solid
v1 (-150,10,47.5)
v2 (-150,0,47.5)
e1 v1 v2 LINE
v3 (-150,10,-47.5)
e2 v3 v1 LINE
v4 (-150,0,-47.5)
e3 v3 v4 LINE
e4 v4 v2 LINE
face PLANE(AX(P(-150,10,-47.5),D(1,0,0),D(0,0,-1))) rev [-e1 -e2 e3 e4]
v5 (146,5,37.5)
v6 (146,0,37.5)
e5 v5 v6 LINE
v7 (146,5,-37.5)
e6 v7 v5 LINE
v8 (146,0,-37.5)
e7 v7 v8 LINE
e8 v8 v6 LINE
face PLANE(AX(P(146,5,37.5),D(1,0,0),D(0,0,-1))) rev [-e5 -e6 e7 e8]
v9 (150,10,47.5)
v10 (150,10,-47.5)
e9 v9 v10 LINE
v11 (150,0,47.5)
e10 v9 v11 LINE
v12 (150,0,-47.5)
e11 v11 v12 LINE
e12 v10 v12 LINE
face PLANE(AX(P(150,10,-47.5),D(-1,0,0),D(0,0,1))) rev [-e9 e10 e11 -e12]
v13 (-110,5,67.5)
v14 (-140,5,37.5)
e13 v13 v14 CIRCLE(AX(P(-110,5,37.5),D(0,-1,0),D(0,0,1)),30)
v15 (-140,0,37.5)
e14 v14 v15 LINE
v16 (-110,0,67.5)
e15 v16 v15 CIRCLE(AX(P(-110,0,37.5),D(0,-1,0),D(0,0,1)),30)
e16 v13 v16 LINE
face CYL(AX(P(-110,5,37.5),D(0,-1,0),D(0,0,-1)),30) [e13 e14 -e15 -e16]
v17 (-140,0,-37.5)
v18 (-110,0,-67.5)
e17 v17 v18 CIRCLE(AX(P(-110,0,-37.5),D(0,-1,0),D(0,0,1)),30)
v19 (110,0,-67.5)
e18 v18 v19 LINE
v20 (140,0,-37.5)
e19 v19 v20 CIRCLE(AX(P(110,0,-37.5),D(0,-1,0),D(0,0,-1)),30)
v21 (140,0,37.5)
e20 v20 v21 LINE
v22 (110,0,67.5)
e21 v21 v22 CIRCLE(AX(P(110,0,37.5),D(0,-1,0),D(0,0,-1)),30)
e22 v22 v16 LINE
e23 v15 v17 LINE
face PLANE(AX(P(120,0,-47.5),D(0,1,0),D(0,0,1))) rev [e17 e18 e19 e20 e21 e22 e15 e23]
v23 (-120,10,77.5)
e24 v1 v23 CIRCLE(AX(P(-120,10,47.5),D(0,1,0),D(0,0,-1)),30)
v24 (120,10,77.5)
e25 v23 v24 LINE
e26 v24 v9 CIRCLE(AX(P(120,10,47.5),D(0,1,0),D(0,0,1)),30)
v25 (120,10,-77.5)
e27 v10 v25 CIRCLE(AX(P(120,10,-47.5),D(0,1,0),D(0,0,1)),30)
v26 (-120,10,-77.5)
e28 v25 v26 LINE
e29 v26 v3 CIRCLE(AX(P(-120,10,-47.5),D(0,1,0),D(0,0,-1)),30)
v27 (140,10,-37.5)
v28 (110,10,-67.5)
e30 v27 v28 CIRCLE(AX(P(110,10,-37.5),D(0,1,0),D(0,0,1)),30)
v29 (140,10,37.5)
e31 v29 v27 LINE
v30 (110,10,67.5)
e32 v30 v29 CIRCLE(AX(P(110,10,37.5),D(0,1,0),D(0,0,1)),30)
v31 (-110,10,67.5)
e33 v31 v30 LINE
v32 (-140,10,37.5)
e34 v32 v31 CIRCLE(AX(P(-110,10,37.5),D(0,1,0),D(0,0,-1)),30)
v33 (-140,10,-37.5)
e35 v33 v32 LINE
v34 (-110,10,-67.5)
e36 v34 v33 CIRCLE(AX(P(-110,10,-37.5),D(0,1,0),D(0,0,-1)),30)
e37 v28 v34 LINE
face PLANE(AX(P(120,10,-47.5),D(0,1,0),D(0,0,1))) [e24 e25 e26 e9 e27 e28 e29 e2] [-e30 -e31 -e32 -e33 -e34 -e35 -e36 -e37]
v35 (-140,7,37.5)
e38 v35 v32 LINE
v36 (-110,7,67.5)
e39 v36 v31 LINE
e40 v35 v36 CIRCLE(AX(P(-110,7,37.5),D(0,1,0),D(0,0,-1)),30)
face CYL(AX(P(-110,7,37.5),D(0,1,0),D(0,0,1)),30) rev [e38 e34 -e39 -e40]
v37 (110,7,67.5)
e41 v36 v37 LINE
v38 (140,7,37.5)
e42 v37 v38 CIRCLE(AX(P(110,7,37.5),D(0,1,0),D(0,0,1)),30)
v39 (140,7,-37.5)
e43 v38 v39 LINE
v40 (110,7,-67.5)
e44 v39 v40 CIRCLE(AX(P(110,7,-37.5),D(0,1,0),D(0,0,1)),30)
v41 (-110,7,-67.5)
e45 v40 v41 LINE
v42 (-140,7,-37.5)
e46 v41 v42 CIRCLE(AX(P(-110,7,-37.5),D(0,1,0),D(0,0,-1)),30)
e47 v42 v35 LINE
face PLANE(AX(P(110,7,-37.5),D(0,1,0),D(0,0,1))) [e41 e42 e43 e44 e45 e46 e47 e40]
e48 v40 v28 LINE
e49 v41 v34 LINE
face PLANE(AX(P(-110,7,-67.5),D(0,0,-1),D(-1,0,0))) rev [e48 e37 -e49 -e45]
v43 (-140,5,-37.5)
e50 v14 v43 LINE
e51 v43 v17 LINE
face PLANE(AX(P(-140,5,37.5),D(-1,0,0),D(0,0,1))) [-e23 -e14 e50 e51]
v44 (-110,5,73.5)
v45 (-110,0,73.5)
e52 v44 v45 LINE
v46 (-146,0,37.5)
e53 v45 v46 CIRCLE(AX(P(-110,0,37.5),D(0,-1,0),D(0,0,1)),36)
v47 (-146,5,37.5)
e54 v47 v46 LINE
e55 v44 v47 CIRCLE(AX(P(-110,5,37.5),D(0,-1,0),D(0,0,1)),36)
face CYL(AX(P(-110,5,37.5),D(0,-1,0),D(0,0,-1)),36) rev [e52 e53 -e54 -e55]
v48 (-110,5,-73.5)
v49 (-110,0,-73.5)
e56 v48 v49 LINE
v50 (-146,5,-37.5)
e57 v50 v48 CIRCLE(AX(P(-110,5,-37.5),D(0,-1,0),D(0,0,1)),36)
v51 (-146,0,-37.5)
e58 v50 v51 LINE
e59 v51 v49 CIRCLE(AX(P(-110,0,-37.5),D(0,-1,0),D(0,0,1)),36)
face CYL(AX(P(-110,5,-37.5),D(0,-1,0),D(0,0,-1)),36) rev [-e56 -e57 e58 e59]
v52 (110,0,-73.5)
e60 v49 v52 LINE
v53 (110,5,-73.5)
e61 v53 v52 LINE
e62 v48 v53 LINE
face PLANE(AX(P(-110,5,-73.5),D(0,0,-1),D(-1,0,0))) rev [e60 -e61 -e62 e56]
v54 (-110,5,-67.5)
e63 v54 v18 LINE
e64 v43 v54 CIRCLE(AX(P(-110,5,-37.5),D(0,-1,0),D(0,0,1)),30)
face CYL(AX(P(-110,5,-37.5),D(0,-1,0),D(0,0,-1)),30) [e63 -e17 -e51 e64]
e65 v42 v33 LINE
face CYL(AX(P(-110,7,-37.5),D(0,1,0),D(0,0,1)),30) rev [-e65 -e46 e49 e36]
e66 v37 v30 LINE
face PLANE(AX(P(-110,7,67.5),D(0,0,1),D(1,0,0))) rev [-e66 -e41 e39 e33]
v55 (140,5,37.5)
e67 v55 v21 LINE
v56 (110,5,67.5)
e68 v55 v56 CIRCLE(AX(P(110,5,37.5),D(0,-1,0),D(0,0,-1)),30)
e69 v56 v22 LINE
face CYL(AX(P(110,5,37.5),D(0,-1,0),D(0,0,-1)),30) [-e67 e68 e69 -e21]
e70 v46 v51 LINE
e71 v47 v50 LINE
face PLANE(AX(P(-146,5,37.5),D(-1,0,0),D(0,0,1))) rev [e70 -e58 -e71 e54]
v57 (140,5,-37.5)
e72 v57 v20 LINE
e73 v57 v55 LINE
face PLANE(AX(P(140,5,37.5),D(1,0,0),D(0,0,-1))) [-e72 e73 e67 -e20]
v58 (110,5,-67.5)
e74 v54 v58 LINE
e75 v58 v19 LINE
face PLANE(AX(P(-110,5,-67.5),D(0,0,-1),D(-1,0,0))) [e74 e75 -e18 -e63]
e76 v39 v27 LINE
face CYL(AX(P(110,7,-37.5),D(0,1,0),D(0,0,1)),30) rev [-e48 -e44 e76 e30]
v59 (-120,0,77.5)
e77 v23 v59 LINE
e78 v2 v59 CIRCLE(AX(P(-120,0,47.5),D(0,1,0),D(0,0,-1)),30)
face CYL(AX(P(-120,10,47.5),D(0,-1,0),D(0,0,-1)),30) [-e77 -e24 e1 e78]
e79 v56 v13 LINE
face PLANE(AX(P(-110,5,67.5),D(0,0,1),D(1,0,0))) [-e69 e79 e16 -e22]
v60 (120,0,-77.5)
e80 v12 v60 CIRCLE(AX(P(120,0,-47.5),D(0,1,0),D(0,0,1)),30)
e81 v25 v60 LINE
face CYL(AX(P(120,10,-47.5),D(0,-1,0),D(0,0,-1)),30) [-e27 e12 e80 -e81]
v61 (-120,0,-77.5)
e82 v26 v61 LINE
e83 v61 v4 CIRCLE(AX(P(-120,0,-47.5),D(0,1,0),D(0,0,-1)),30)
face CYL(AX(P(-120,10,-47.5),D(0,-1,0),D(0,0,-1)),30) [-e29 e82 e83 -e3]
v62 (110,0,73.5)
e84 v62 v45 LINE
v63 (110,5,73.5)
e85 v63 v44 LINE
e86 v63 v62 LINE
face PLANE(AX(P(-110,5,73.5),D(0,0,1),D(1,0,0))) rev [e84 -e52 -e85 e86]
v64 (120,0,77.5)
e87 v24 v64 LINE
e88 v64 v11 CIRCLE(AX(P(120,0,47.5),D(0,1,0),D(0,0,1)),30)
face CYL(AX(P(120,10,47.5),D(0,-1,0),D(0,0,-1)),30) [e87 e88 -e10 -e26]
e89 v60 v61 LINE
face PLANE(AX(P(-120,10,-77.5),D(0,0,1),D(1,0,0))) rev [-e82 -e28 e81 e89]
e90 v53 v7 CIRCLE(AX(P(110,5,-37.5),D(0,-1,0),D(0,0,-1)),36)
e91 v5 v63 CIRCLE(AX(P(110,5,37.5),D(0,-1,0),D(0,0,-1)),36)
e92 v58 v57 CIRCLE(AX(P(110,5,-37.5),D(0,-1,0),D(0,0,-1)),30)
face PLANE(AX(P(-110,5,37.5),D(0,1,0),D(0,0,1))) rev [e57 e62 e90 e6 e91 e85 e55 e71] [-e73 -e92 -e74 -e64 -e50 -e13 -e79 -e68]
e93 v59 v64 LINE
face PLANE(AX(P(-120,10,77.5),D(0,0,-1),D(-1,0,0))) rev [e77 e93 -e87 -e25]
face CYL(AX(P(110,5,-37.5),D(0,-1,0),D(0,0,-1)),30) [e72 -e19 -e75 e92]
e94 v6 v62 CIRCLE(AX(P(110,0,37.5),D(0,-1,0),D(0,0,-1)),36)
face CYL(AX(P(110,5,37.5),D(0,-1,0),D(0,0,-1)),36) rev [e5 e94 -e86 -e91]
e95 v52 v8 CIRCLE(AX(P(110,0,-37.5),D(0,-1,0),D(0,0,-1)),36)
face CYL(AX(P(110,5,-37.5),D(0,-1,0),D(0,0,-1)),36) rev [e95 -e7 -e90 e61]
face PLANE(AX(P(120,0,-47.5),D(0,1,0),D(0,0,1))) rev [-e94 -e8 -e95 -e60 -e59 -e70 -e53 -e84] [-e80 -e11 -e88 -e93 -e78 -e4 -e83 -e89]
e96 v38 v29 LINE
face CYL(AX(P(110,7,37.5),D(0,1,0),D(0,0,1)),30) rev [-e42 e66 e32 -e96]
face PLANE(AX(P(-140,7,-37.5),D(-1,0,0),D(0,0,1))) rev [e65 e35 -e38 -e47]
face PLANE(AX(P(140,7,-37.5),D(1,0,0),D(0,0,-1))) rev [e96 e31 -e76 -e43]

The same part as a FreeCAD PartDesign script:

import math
import FreeCAD as App
import Part
import Sketcher

V = App.Vector

doc = App.newDocument("Part")
params = doc.addObject("Spreadsheet::Sheet", "Params")
for row, (alias, value) in enumerate([
    ("sketch1_radius", "30 mm"),
    ("sketch1_width", "240 mm"),
    ("sketch1_height", "95 mm"),
    ("pad1_length", "10 mm"),
    ("sketch2_radius", "36 mm"),
    ("sketch2_radius2", "30 mm"),
    ("sketch2_width", "220 mm"),
    ("sketch2_height", "75 mm"),
    ("pocket1_length", "5 mm"),
    ("sketch3_radius", "30 mm"),
    ("sketch3_width", "220 mm"),
    ("sketch3_height", "75 mm"),
    ("pocket2_length", "3 mm"),
], start=1):
    params.set(f"A{row}", alias)
    params.set(f"B{row}", "=" + value)
    params.setAlias(f"B{row}", alias)

body = doc.addObject("PartDesign::Body", "Body")

# Sketch on XZ plane
sketch1 = body.newObject("Sketcher::SketchObject", "Sketch")
sketch1.AttachmentSupport = (doc.getObject("XZ_Plane"), [""])
sketch1.MapMode = "FlatFace"
sketch1.addGeometry([
    Part.LineSegment(V(120, -78, 0), V(-120, -78, 0)),  # 0
    Part.ArcOfCircle(Part.Circle(V(-120, -48, 0), V(0, 0, 1), 30), math.radians(180), math.radians(270)),  # 1
    Part.LineSegment(V(-150, -48, 0), V(-150, 48, 0)),  # 2
    Part.ArcOfCircle(Part.Circle(V(-120, 48, 0), V(0, 0, 1), 30), math.radians(90), math.radians(180)),  # 3
    Part.LineSegment(V(-120, 78, 0), V(120, 78, 0)),  # 4
    Part.ArcOfCircle(Part.Circle(V(120, 48, 0), V(0, 0, 1), 30), math.radians(0), math.radians(90)),  # 5
    Part.LineSegment(V(150, 48, 0), V(150, -48, 0)),  # 6
    Part.ArcOfCircle(Part.Circle(V(120, -48, 0), V(0, 0, 1), 30), math.radians(-90), math.radians(0)),  # 7
], False)
sketch1.addConstraint([
    Sketcher.Constraint("Tangent", 0, 2, 1, 2),
    Sketcher.Constraint("Tangent", 1, 1, 2, 1),
    Sketcher.Constraint("Tangent", 2, 2, 3, 2),
    Sketcher.Constraint("Tangent", 3, 1, 4, 1),
    Sketcher.Constraint("Tangent", 4, 2, 5, 2),
    Sketcher.Constraint("Tangent", 5, 1, 6, 1),
    Sketcher.Constraint("Tangent", 6, 2, 7, 2),
    Sketcher.Constraint("Tangent", 7, 1, 0, 1),
    Sketcher.Constraint("Horizontal", 0),
    Sketcher.Constraint("Vertical", 2),
    Sketcher.Constraint("Horizontal", 4),
    Sketcher.Constraint("Vertical", 6),
    Sketcher.Constraint("Equal", 1, 3),
    Sketcher.Constraint("Equal", 3, 5),
    Sketcher.Constraint("Equal", 5, 7),
    Sketcher.Constraint("Symmetric", 1, 3, 5, 3, -1, 1),
    Sketcher.Constraint("Radius", 1, 30.0),
    Sketcher.Constraint("DistanceX", 0, 2, 0, 1, 240.0),
    Sketcher.Constraint("DistanceY", 2, 1, 2, 2, 95.0),
])
sketch1.setExpression("Constraints[16]", "Params.sketch1_radius")
sketch1.setExpression("Constraints[17]", "Params.sketch1_width")
sketch1.setExpression("Constraints[18]", "Params.sketch1_height")
pad1 = body.newObject("PartDesign::Pad", "Pad")
pad1.Profile = sketch1
pad1.setExpression("Length", "Params.pad1_length")
pad1.Reversed = True

# Sketch on XZ plane
sketch2 = body.newObject("Sketcher::SketchObject", "Sketch001")
sketch2.AttachmentSupport = (doc.getObject("XZ_Plane"), [""])
sketch2.MapMode = "FlatFace"
sketch2.addGeometry([
    Part.LineSegment(V(110, 74, 0), V(-110, 74, 0)),  # 0
    Part.ArcOfCircle(Part.Circle(V(-110, 38, 0), V(0, 0, 1), 36), math.radians(90), math.radians(180)),  # 1
    Part.LineSegment(V(-146, 38, 0), V(-146, -38, 0)),  # 2
    Part.ArcOfCircle(Part.Circle(V(-110, -38, 0), V(0, 0, 1), 36), math.radians(180), math.radians(270)),  # 3
    Part.LineSegment(V(-110, -74, 0), V(110, -74, 0)),  # 4
    Part.ArcOfCircle(Part.Circle(V(110, -38, 0), V(0, 0, 1), 36), math.radians(-90), math.radians(0)),  # 5
    Part.LineSegment(V(146, -38, 0), V(146, 38, 0)),  # 6
    Part.ArcOfCircle(Part.Circle(V(110, 38, 0), V(0, 0, 1), 36), math.radians(0), math.radians(90)),  # 7
    Part.LineSegment(V(-110, 68, 0), V(110, 68, 0)),  # 8
    Part.ArcOfCircle(Part.Circle(V(110, 38, 0), V(0, 0, 1), 30), math.radians(0), math.radians(90)),  # 9
    Part.LineSegment(V(140, 38, 0), V(140, -38, 0)),  # 10
    Part.ArcOfCircle(Part.Circle(V(110, -38, 0), V(0, 0, 1), 30), math.radians(-90), math.radians(0)),  # 11
    Part.LineSegment(V(110, -68, 0), V(-110, -68, 0)),  # 12
    Part.ArcOfCircle(Part.Circle(V(-110, -38, 0), V(0, 0, 1), 30), math.radians(180), math.radians(270)),  # 13
    Part.LineSegment(V(-140, -38, 0), V(-140, 38, 0)),  # 14
    Part.ArcOfCircle(Part.Circle(V(-110, 38, 0), V(0, 0, 1), 30), math.radians(90), math.radians(180)),  # 15
], False)
sketch2.addConstraint([
    Sketcher.Constraint("Tangent", 0, 2, 1, 1),
    Sketcher.Constraint("Tangent", 1, 2, 2, 1),
    Sketcher.Constraint("Tangent", 2, 2, 3, 1),
    Sketcher.Constraint("Tangent", 3, 2, 4, 1),
    Sketcher.Constraint("Tangent", 4, 2, 5, 1),
    Sketcher.Constraint("Tangent", 5, 2, 6, 1),
    Sketcher.Constraint("Tangent", 6, 2, 7, 1),
    Sketcher.Constraint("Tangent", 7, 2, 0, 1),
    Sketcher.Constraint("Tangent", 8, 2, 9, 2),
    Sketcher.Constraint("Tangent", 9, 1, 10, 1),
    Sketcher.Constraint("Tangent", 10, 2, 11, 2),
    Sketcher.Constraint("Tangent", 11, 1, 12, 1),
    Sketcher.Constraint("Tangent", 12, 2, 13, 2),
    Sketcher.Constraint("Tangent", 13, 1, 14, 1),
    Sketcher.Constraint("Tangent", 14, 2, 15, 2),
    Sketcher.Constraint("Tangent", 15, 1, 8, 1),
    Sketcher.Constraint("Horizontal", 0),
    Sketcher.Constraint("Vertical", 2),
    Sketcher.Constraint("Horizontal", 4),
    Sketcher.Constraint("Vertical", 6),
    Sketcher.Constraint("Horizontal", 8),
    Sketcher.Constraint("Vertical", 10),
    Sketcher.Constraint("Horizontal", 12),
    Sketcher.Constraint("Vertical", 14),
    Sketcher.Constraint("Coincident", 9, 3, 7, 3),
    Sketcher.Constraint("Coincident", 11, 3, 5, 3),
    Sketcher.Constraint("Coincident", 13, 3, 3, 3),
    Sketcher.Constraint("Equal", 1, 3),
    Sketcher.Constraint("Equal", 3, 5),
    Sketcher.Constraint("Equal", 5, 7),
    Sketcher.Constraint("Equal", 13, 15),
    Sketcher.Constraint("Symmetric", 1, 3, 5, 3, -1, 1),
    Sketcher.Constraint("Radius", 1, 36.0),
    Sketcher.Constraint("Radius", 9, 30.0),
    Sketcher.Constraint("DistanceX", 0, 2, 0, 1, 220.0),
    Sketcher.Constraint("DistanceY", 2, 2, 2, 1, 75.0),
])
sketch2.setExpression("Constraints[32]", "Params.sketch2_radius")
sketch2.setExpression("Constraints[33]", "Params.sketch2_radius2")
sketch2.setExpression("Constraints[34]", "Params.sketch2_width")
sketch2.setExpression("Constraints[35]", "Params.sketch2_height")
pocket1 = body.newObject("PartDesign::Pocket", "Pocket")
pocket1.Profile = sketch2
pocket1.setExpression("Length", "Params.pocket1_length")

# Sketch on XZ plane
sketch3 = body.newObject("Sketcher::SketchObject", "Sketch002")
sketch3.AttachmentSupport = (doc.getObject("XZ_Plane"), [""])
sketch3.MapMode = "FlatFace"
sketch3.AttachmentOffset = App.Placement(V(0, 0, -10), App.Rotation())
sketch3.addGeometry([
    Part.LineSegment(V(110, -68, 0), V(-110, -68, 0)),  # 0
    Part.ArcOfCircle(Part.Circle(V(-110, -38, 0), V(0, 0, 1), 30), math.radians(180), math.radians(270)),  # 1
    Part.LineSegment(V(-140, -38, 0), V(-140, 38, 0)),  # 2
    Part.ArcOfCircle(Part.Circle(V(-110, 38, 0), V(0, 0, 1), 30), math.radians(90), math.radians(180)),  # 3
    Part.LineSegment(V(-110, 68, 0), V(110, 68, 0)),  # 4
    Part.ArcOfCircle(Part.Circle(V(110, 38, 0), V(0, 0, 1), 30), math.radians(0), math.radians(90)),  # 5
    Part.LineSegment(V(140, 38, 0), V(140, -38, 0)),  # 6
    Part.ArcOfCircle(Part.Circle(V(110, -38, 0), V(0, 0, 1), 30), math.radians(-90), math.radians(0)),  # 7
], False)
sketch3.addConstraint([
    Sketcher.Constraint("Tangent", 0, 2, 1, 2),
    Sketcher.Constraint("Tangent", 1, 1, 2, 1),
    Sketcher.Constraint("Tangent", 2, 2, 3, 2),
    Sketcher.Constraint("Tangent", 3, 1, 4, 1),
    Sketcher.Constraint("Tangent", 4, 2, 5, 2),
    Sketcher.Constraint("Tangent", 5, 1, 6, 1),
    Sketcher.Constraint("Tangent", 6, 2, 7, 2),
    Sketcher.Constraint("Tangent", 7, 1, 0, 1),
    Sketcher.Constraint("Horizontal", 0),
    Sketcher.Constraint("Vertical", 2),
    Sketcher.Constraint("Horizontal", 4),
    Sketcher.Constraint("Vertical", 6),
    Sketcher.Constraint("Equal", 1, 3),
    Sketcher.Constraint("Equal", 3, 5),
    Sketcher.Constraint("Equal", 5, 7),
    Sketcher.Constraint("Symmetric", 1, 3, 5, 3, -1, 1),
    Sketcher.Constraint("Radius", 1, 30.0),
    Sketcher.Constraint("DistanceX", 0, 2, 0, 1, 220.0),
    Sketcher.Constraint("DistanceY", 2, 1, 2, 2, 75.0),
])
sketch3.setExpression("Constraints[16]", "Params.sketch3_radius")
sketch3.setExpression("Constraints[17]", "Params.sketch3_width")
sketch3.setExpression("Constraints[18]", "Params.sketch3_height")
pocket2 = body.newObject("PartDesign::Pocket", "Pocket001")
pocket2.Profile = sketch3
pocket2.setExpression("Length", "Params.pocket2_length")
pocket2.Reversed = True

doc.recompute()
